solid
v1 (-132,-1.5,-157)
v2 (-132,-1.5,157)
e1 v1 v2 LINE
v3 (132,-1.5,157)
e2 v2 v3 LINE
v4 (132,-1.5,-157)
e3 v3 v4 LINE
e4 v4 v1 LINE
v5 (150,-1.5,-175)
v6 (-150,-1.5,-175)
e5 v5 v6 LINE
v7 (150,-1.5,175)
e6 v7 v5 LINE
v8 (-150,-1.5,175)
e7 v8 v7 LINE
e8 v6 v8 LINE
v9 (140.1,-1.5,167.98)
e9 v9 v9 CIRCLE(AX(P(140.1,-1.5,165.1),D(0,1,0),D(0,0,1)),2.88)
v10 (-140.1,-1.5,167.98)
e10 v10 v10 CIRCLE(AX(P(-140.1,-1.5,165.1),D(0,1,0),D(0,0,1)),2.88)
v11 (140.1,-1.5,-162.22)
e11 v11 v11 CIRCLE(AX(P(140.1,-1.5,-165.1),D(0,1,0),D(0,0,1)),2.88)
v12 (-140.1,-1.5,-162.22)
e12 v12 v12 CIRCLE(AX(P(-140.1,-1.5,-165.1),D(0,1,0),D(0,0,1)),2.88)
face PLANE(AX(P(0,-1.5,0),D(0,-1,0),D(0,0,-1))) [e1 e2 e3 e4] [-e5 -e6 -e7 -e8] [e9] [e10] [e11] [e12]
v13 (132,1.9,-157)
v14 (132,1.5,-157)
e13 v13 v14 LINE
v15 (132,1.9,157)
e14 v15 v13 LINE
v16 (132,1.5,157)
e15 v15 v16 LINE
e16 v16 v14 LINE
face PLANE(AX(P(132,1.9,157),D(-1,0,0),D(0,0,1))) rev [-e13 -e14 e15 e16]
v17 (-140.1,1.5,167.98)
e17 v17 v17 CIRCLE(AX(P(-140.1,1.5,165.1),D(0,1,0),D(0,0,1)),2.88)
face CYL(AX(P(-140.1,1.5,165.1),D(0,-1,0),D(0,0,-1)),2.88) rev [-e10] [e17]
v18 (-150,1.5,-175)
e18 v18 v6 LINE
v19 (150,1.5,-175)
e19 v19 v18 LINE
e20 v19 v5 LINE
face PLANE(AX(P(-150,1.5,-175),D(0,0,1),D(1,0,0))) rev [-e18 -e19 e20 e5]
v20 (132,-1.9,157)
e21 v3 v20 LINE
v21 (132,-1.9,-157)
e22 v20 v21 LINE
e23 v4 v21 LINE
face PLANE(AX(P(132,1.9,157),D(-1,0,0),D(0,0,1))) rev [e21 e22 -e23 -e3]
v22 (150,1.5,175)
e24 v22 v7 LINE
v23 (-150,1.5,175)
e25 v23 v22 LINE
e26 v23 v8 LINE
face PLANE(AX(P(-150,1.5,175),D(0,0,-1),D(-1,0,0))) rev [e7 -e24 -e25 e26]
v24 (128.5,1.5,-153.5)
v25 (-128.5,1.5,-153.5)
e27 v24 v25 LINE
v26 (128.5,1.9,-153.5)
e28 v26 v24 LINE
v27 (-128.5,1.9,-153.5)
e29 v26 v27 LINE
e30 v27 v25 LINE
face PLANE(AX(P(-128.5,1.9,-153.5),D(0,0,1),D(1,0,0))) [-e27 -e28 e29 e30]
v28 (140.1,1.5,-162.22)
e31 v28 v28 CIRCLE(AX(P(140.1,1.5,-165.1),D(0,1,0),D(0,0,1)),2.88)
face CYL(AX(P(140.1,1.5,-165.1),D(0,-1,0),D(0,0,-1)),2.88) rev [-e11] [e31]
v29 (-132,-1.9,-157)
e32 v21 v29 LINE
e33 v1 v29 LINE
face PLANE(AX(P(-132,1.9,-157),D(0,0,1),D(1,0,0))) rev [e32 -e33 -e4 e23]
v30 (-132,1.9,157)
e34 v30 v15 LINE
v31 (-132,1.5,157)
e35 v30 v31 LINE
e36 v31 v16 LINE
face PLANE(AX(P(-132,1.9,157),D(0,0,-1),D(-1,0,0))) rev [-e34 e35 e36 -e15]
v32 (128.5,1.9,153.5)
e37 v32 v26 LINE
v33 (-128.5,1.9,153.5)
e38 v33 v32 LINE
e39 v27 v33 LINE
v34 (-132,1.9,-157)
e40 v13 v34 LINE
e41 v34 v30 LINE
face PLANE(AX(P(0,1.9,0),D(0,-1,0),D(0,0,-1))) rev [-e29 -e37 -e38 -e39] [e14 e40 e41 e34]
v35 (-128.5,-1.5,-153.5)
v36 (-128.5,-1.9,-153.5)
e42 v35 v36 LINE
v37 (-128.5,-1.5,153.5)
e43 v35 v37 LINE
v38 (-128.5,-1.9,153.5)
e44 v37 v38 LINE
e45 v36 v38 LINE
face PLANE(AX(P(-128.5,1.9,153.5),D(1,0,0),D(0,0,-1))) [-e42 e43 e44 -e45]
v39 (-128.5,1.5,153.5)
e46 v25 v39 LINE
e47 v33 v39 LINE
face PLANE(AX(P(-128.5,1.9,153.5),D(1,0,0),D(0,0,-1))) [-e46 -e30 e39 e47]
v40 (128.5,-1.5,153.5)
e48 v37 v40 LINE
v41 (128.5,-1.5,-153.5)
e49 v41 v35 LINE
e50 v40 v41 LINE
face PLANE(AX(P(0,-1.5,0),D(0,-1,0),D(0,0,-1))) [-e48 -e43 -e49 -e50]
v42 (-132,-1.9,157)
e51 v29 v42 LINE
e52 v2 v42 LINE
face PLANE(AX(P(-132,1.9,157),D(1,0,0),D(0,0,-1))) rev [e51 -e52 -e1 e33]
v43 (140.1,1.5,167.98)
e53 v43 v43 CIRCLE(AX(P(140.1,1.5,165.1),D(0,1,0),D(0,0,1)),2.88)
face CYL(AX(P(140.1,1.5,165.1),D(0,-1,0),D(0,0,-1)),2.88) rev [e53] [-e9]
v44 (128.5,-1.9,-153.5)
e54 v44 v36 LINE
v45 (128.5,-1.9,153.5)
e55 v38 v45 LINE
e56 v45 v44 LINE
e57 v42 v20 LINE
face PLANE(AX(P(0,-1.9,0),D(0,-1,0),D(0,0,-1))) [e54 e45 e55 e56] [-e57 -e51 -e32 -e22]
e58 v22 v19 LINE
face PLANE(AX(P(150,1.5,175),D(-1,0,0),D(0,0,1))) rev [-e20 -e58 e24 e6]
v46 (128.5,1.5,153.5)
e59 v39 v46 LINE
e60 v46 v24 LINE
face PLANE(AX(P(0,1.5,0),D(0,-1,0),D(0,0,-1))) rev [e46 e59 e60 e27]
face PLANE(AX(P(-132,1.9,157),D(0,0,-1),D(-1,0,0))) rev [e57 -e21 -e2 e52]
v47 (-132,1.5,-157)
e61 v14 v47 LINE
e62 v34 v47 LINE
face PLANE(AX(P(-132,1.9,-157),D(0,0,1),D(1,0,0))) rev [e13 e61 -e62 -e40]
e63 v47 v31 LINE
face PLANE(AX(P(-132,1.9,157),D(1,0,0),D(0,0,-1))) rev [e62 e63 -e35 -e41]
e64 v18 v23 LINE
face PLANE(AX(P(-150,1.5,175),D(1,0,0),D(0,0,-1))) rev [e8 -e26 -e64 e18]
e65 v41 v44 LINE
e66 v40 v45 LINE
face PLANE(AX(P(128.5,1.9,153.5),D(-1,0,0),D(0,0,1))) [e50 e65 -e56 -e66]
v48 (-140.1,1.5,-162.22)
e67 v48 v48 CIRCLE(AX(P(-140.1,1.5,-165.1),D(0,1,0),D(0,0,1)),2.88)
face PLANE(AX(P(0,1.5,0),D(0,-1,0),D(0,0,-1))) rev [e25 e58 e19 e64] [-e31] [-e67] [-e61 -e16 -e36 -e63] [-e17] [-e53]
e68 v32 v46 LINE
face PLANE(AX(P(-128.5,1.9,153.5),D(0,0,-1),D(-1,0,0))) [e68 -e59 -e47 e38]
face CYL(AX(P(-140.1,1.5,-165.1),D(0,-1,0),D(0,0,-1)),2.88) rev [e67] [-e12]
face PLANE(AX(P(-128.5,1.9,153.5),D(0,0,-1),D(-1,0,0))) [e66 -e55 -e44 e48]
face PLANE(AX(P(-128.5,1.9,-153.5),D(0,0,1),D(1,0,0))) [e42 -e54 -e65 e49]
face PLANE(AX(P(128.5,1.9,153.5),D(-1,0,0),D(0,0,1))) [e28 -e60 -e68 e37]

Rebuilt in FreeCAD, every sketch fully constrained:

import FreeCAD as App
import Part
import Sketcher


def add_polygon(sketch, points):
    """Adds a closed chain of lines whose ends are joined by coincident constraints."""
    first, n = sketch.GeometryCount, len(points)
    for a, b in zip(points, points[1:] + points[:1]):
        sketch.addGeometry(Part.LineSegment(App.Vector(*a, 0), App.Vector(*b, 0)), False)
    for i in range(n):
        sketch.addConstraint(Sketcher.Constraint("Coincident", first + i, 2, first + (i + 1) % n, 1))

doc = App.newDocument("Part")
body = doc.addObject("PartDesign::Body", "Body")

# Sketch on XZ plane
sketch1 = body.newObject("Sketcher::SketchObject", "Sketch")
sketch1.AttachmentSupport = (doc.getObject("XZ_Plane"), [""])
sketch1.MapMode = "FlatFace"
add_polygon(sketch1, [(-150, -175), (-150, 175), (150, 175), (150, -175)])  # lines 0-3
sketch1.addGeometry(Part.Circle(App.Vector(-140.1, 165.1, 0), App.Vector(0, 0, 1), 2.9), False)  # 4
sketch1.addGeometry(Part.Circle(App.Vector(140.1, 165.1, 0), App.Vector(0, 0, 1), 2.9), False)  # 5
sketch1.addGeometry(Part.Circle(App.Vector(-140.1, -165.1, 0), App.Vector(0, 0, 1), 2.9), False)  # 6
sketch1.addGeometry(Part.Circle(App.Vector(140.1, -165.1, 0), App.Vector(0, 0, 1), 2.9), False)  # 7
sketch1.addConstraint([
    Sketcher.Constraint("Vertical", 0),
    Sketcher.Constraint("Horizontal", 1),
    Sketcher.Constraint("Vertical", 2),
    Sketcher.Constraint("Horizontal", 3),
    Sketcher.Constraint("Equal", 4, 5),
    Sketcher.Constraint("Equal", 5, 6),
    Sketcher.Constraint("Equal", 6, 7),
    Sketcher.Constraint("Symmetric", 5, 3, 6, 3, -1, 1),
    Sketcher.Constraint("Symmetric", 4, 3, 7, 3, -1, 1),
    Sketcher.Constraint("Symmetric", 0, 2, 2, 2, -1, 1),
    Sketcher.Constraint("Symmetric", 4, 3, 5, 3, -2),
    Sketcher.Constraint("Diameter", 4, 5.76),
    Sketcher.Constraint("DistanceX", 1, 1, 1, 2, 300.0),
    Sketcher.Constraint("DistanceY", 0, 1, 0, 2, 350.0),
    Sketcher.Constraint("DistanceX", 4, 3, -1, 1, 140.1),
    Sketcher.Constraint("DistanceY", -1, 1, 4, 3, 165.1),
])
pad1 = body.newObject("PartDesign::Pad", "Pad")
pad1.Profile = sketch1
pad1.Length = 3
pad1.Midplane = True

# Sketch on XZ plane
sketch2 = body.newObject("Sketcher::SketchObject", "Sketch001")
sketch2.AttachmentSupport = (doc.getObject("XZ_Plane"), [""])
sketch2.MapMode = "FlatFace"
add_polygon(sketch2, [(-132, -157), (-132, 157), (132, 157), (132, -157)])  # lines 0-3
add_polygon(sketch2, [(128, 154), (-128, 154), (-128, -154), (128, -154)])  # lines 4-7
sketch2.addConstraint([
    Sketcher.Constraint("Vertical", 0),
    Sketcher.Constraint("Horizontal", 1),
    Sketcher.Constraint("Vertical", 2),
    Sketcher.Constraint("Horizontal", 3),
    Sketcher.Constraint("Horizontal", 4),
    Sketcher.Constraint("Vertical", 5),
    Sketcher.Constraint("Horizontal", 6),
    Sketcher.Constraint("Vertical", 7),
    Sketcher.Constraint("Symmetric", 0, 2, 2, 2, -1, 1),
    Sketcher.Constraint("Symmetric", 4, 2, 6, 2, -1, 1),
    Sketcher.Constraint("DistanceX", 1, 1, 1, 2, 264.0),
    Sketcher.Constraint("DistanceX", 4, 2, 4, 1, 257.0),
    Sketcher.Constraint("DistanceY", 0, 1, 0, 2, 314.0),
    Sketcher.Constraint("DistanceY", 5, 2, 5, 1, 307.0),
])
pad2 = body.newObject("PartDesign::Pad", "Pad001")
pad2.Profile = sketch2
pad2.Length = 3.8
pad2.Midplane = True

doc.recompute()
